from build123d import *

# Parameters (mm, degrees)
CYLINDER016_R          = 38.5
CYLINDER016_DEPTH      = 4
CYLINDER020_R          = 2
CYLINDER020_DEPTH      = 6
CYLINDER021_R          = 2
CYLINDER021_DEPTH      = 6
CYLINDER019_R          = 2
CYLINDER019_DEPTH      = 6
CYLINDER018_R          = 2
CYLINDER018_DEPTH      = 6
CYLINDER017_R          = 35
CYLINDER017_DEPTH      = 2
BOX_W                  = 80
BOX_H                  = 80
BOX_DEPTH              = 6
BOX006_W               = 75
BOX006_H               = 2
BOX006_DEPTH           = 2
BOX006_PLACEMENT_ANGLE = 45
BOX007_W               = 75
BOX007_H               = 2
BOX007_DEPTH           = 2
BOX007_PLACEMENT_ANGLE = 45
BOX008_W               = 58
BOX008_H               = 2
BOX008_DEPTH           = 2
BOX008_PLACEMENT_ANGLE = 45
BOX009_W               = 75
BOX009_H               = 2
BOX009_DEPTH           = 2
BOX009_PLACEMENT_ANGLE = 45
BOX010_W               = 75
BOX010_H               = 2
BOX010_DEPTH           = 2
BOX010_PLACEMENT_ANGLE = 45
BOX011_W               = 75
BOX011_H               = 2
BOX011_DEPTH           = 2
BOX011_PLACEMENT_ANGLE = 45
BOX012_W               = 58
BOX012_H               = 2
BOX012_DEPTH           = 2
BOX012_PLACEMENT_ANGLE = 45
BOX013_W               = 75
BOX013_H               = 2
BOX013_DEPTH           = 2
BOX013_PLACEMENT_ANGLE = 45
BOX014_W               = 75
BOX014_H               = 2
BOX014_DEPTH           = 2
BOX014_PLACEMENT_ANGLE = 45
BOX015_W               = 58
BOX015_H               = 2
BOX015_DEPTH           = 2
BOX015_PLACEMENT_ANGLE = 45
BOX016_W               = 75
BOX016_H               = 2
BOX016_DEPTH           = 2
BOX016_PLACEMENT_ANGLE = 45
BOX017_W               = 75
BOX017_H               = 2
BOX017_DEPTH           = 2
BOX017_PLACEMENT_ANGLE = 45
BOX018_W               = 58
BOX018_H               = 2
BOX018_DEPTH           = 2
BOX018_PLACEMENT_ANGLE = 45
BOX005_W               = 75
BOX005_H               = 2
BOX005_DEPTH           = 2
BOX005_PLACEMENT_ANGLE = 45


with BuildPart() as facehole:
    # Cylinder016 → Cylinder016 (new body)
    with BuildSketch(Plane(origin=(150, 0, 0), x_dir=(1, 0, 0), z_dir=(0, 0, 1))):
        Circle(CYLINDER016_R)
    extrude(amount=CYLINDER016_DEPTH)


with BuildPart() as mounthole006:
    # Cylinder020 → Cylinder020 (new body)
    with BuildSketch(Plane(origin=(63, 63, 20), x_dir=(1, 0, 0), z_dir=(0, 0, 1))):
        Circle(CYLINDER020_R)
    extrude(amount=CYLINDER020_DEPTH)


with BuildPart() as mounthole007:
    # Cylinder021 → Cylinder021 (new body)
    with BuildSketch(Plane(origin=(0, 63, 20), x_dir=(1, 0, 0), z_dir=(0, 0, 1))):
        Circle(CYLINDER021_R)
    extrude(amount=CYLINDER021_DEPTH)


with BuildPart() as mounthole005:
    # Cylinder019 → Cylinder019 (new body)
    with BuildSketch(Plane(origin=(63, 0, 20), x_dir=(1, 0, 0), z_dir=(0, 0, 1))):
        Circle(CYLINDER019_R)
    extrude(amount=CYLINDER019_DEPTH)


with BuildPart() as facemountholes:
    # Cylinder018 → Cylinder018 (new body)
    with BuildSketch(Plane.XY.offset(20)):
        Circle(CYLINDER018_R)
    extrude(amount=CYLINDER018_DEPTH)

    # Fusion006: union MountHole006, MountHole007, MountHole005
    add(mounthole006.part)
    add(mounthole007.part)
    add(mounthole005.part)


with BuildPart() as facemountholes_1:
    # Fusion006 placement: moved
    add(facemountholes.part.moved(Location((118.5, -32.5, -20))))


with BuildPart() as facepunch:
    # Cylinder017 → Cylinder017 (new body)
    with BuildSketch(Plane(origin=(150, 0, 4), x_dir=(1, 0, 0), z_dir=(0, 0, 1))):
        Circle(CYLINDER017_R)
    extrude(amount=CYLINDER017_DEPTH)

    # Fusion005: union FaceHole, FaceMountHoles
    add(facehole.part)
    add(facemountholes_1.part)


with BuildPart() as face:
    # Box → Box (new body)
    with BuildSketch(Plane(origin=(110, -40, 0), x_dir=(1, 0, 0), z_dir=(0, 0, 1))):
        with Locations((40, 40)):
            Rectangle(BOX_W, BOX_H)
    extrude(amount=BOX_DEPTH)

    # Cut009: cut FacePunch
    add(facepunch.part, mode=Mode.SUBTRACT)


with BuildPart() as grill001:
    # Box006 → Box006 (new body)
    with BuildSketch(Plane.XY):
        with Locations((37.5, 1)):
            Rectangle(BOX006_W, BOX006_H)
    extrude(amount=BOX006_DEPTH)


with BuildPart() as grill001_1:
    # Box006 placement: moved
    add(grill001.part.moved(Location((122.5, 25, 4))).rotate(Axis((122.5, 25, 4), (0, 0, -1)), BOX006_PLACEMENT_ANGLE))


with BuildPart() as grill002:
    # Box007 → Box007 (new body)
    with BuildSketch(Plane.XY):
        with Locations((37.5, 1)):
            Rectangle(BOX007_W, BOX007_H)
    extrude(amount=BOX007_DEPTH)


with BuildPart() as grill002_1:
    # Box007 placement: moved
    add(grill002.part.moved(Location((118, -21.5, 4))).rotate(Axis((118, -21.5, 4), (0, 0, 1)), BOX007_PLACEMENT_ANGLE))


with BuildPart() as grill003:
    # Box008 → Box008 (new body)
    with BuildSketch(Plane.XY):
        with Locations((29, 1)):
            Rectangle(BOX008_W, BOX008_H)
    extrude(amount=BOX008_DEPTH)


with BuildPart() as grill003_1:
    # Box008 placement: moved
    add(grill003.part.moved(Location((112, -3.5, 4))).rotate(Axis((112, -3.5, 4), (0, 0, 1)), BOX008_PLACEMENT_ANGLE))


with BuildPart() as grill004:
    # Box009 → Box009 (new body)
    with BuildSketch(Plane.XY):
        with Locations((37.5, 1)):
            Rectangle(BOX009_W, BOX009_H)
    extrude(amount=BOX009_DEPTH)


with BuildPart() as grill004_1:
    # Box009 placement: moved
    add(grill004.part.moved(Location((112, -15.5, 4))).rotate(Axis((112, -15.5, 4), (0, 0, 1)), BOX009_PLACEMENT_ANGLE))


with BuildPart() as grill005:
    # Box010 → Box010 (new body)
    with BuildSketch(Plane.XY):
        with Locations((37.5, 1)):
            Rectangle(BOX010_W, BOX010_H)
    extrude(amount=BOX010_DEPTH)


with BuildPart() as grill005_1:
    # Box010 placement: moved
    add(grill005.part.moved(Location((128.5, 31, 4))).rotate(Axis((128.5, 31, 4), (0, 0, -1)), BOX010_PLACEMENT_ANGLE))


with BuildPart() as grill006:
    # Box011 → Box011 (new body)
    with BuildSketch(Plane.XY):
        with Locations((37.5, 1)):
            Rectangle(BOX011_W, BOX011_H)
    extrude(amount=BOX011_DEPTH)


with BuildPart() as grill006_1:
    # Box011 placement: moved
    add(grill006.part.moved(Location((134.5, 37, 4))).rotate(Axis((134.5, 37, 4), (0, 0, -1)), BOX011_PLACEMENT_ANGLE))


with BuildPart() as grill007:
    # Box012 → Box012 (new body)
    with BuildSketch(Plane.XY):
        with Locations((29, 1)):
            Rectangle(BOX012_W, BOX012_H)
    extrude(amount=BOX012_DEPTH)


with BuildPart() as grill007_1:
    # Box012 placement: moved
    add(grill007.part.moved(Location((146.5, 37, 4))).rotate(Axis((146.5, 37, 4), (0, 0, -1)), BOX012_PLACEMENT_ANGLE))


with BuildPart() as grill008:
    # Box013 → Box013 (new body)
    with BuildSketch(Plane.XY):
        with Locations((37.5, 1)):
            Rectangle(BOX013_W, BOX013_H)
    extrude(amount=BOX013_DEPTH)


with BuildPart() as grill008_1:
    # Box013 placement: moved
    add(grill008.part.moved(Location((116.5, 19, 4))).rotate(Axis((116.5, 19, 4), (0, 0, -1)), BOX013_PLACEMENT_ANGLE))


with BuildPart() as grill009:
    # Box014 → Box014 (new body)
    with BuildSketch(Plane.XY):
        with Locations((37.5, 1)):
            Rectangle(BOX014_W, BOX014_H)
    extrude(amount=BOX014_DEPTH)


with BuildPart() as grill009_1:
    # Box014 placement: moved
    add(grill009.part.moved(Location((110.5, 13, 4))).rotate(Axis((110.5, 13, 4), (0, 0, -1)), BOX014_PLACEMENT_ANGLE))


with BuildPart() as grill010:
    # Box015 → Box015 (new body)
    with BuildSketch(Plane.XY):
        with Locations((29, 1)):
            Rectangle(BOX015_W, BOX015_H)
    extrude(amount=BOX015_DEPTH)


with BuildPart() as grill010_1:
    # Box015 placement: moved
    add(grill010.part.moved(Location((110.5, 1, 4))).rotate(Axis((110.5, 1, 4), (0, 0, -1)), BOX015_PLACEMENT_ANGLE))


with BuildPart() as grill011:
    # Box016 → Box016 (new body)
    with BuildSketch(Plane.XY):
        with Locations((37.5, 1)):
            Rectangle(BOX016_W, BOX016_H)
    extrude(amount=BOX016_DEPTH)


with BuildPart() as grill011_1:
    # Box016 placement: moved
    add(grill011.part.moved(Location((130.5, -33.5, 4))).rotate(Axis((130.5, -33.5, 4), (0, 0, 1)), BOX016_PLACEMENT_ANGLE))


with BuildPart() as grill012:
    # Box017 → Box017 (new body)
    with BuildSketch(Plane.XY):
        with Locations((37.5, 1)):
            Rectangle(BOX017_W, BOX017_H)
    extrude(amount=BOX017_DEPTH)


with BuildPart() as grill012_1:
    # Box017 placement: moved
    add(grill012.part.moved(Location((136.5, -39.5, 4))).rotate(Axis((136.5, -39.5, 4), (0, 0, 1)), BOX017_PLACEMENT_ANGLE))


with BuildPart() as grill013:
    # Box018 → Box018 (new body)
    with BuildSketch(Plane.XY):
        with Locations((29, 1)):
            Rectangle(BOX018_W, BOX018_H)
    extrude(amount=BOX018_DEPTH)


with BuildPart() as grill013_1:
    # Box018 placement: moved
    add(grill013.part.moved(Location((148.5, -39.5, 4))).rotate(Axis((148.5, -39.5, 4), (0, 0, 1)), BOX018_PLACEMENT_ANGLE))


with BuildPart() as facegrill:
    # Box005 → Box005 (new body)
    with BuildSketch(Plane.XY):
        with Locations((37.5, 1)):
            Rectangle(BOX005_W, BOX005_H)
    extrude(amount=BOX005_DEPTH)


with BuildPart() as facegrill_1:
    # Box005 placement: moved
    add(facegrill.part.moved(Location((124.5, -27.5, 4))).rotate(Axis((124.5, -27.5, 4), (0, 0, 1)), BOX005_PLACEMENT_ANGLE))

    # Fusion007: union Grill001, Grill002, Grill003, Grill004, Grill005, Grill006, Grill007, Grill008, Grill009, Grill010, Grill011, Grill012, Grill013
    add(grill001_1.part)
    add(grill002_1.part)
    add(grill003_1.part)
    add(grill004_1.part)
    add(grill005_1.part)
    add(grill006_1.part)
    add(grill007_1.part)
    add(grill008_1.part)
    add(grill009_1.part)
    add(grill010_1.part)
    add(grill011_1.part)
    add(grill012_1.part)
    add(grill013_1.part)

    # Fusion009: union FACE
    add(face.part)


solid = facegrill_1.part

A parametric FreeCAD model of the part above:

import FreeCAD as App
import Part
import Sketcher
Q = App.Units.Quantity


def add_polygon(sketch, points):
    """Adds a closed chain of lines whose ends are joined by coincident constraints."""
    first, n = sketch.GeometryCount, len(points)
    for a, b in zip(points, points[1:] + points[:1]):
        sketch.addGeometry(Part.LineSegment(App.Vector(*a, 0), App.Vector(*b, 0)), False)
    for i in range(n):
        sketch.addConstraint(Sketcher.Constraint("Coincident", first + i, 2, first + (i + 1) % n, 1))

doc = App.newDocument("Part")
body = doc.addObject("PartDesign::Body", "Body")

sketch1 = body.newObject("Sketcher::SketchObject", "Sketch")
sketch1.AttachmentSupport = (doc.getObject("XY_Plane"), [""])
sketch1.MapMode = "FlatFace"
sketch1.addGeometry(Part.Circle(App.Vector(150, 0, 0), App.Vector(0, 0, 1), 38), False)
sketch1.addConstraint(Sketcher.Constraint("PointOnObject", 0, 3, -1))
sketch1.addConstraint(Sketcher.Constraint("Diameter", 0, Q("77 mm")))
sketch1.addConstraint(Sketcher.Constraint("DistanceX", -1, 1, 0, 3, Q("150 mm")))
pad1 = body.newObject("PartDesign::Pad", "Pad")
pad1.Profile = sketch1
pad1.Length = 4
body2 = doc.addObject("PartDesign::Body", "Body001")

sketch2 = body2.newObject("Sketcher::SketchObject", "Sketch001")
sketch2.AttachmentSupport = (doc.getObject("XY_Plane001"), [""])
sketch2.MapMode = "FlatFace"
sketch2.AttachmentOffset = App.Placement(App.Vector(0, 0, 20), App.Rotation())
sketch2.addGeometry(Part.Circle(App.Vector(63, 63, 0), App.Vector(0, 0, 1), 2), False)
sketch2.addConstraint(Sketcher.Constraint("Diameter", 0, Q("4 mm")))
sketch2.addConstraint(Sketcher.Constraint("DistanceX", -1, 1, 0, 3, Q("63 mm")))
sketch2.addConstraint(Sketcher.Constraint("DistanceY", -1, 1, 0, 3, Q("63 mm")))
pad2 = body2.newObject("PartDesign::Pad", "Pad001")
pad2.Profile = sketch2
pad2.Length = 6
body3 = doc.addObject("PartDesign::Body", "Body002")

sketch3 = body3.newObject("Sketcher::SketchObject", "Sketch002")
sketch3.AttachmentSupport = (doc.getObject("XY_Plane002"), [""])
sketch3.MapMode = "FlatFace"
sketch3.AttachmentOffset = App.Placement(App.Vector(0, 0, 20), App.Rotation())
sketch3.addGeometry(Part.Circle(App.Vector(0, 63, 0), App.Vector(0, 0, 1), 2), False)
sketch3.addConstraint(Sketcher.Constraint("PointOnObject", 0, 3, -2))
sketch3.addConstraint(Sketcher.Constraint("Diameter", 0, Q("4 mm")))
sketch3.addConstraint(Sketcher.Constraint("DistanceY", -1, 1, 0, 3, Q("63 mm")))
pad3 = body3.newObject("PartDesign::Pad", "Pad002")
pad3.Profile = sketch3
pad3.Length = 6
body4 = doc.addObject("PartDesign::Body", "Body003")

sketch4 = body4.newObject("Sketcher::SketchObject", "Sketch003")
sketch4.AttachmentSupport = (doc.getObject("XY_Plane003"), [""])
sketch4.MapMode = "FlatFace"
sketch4.AttachmentOffset = App.Placement(App.Vector(0, 0, 20), App.Rotation())
sketch4.addGeometry(Part.Circle(App.Vector(63, 0, 0), App.Vector(0, 0, 1), 2), False)
sketch4.addConstraint(Sketcher.Constraint("PointOnObject", 0, 3, -1))
sketch4.addConstraint(Sketcher.Constraint("Diameter", 0, Q("4 mm")))
sketch4.addConstraint(Sketcher.Constraint("DistanceX", -1, 1, 0, 3, Q("63 mm")))
pad4 = body4.newObject("PartDesign::Pad", "Pad003")
pad4.Profile = sketch4
pad4.Length = 6
body5 = doc.addObject("PartDesign::Body", "Body004")
body5.AllowCompound = True

sketch5 = body5.newObject("Sketcher::SketchObject", "Sketch004")
sketch5.AttachmentSupport = (doc.getObject("XY_Plane004"), [""])
sketch5.MapMode = "FlatFace"
sketch5.AttachmentOffset = App.Placement(App.Vector(0, 0, 20), App.Rotation())
sketch5.addGeometry(Part.Circle(App.Vector(0, 0, 0), App.Vector(0, 0, 1), 2), False)
sketch5.addConstraint(Sketcher.Constraint("Coincident", 0, 3, -1, 1))
sketch5.addConstraint(Sketcher.Constraint("Diameter", 0, Q("4 mm")))
pad5 = body5.newObject("PartDesign::Pad", "Pad004")
pad5.Profile = sketch5
pad5.Length = 6
doc.recompute()

boolean = body5.newObject("PartDesign::Boolean", "Boolean")
boolean.Type = "Fuse"
boolean.addObjects([body2])
doc.recompute()

boolean2 = body5.newObject("PartDesign::Boolean", "Boolean001")
boolean2.Type = "Fuse"
boolean2.addObjects([body3])
doc.recompute()

boolean3 = body5.newObject("PartDesign::Boolean", "Boolean002")
boolean3.Type = "Fuse"
boolean3.addObjects([body4])
body6 = doc.addObject("PartDesign::Body", "Body005")
body6.AllowCompound = True
doc.recompute()

body5.Placement = App.Placement(App.Vector(118.5, -32.5, -20), App.Rotation(App.Vector(0, 0, 1), 0))
boolean4 = body6.newObject("PartDesign::Boolean", "Boolean003")
boolean4.Type = "Fuse"
boolean4.addObjects([body5])
body7 = doc.addObject("PartDesign::Body", "Body006")
body7.AllowCompound = True

sketch6 = body7.newObject("Sketcher::SketchObject", "Sketch005")
sketch6.AttachmentSupport = (doc.getObject("XY_Plane006"), [""])
sketch6.MapMode = "FlatFace"
sketch6.AttachmentOffset = App.Placement(App.Vector(0, 0, 4), App.Rotation())
sketch6.addGeometry(Part.Circle(App.Vector(150, 0, 0), App.Vector(0, 0, 1), 35), False)
sketch6.addConstraint(Sketcher.Constraint("PointOnObject", 0, 3, -1))
sketch6.addConstraint(Sketcher.Constraint("Diameter", 0, Q("70 mm")))
sketch6.addConstraint(Sketcher.Constraint("DistanceX", -1, 1, 0, 3, Q("150 mm")))
pad6 = body7.newObject("PartDesign::Pad", "Pad005")
pad6.Profile = sketch6
pad6.Length = 2
doc.recompute()

boolean5 = body7.newObject("PartDesign::Boolean", "Boolean004")
boolean5.Type = "Fuse"
boolean5.addObjects([body])
doc.recompute()

boolean6 = body7.newObject("PartDesign::Boolean", "Boolean005")
boolean6.Type = "Fuse"
boolean6.addObjects([body6])
body8 = doc.addObject("PartDesign::Body", "Body007")

sketch7 = body8.newObject("Sketcher::SketchObject", "Sketch006")
sketch7.AttachmentSupport = (doc.getObject("XY_Plane007"), [""])
sketch7.MapMode = "FlatFace"
add_polygon(sketch7, [(110, 40), (110, -40), (190, -40), (190, 40)])
sketch7.addConstraint(Sketcher.Constraint("Vertical", 0))
sketch7.addConstraint(Sketcher.Constraint("Horizontal", 1))
sketch7.addConstraint(Sketcher.Constraint("Vertical", 2))
sketch7.addConstraint(Sketcher.Constraint("Horizontal", 3))
sketch7.addConstraint(Sketcher.Constraint("Equal", 3, 0))
sketch7.addConstraint(Sketcher.Constraint("DistanceX", 1, 1, 1, 2, Q("80 mm")))
sketch7.addConstraint(Sketcher.Constraint("DistanceX", -1, 1, 0, 2, Q("110 mm")))
sketch7.addConstraint(Sketcher.Constraint("DistanceY", 0, 2, -1, 1, Q("40 mm")))
pad7 = body8.newObject("PartDesign::Pad", "Pad006")
pad7.Profile = sketch7
pad7.Length = 6
doc.recompute()

boolean7 = body8.newObject("PartDesign::Boolean", "Boolean006")
boolean7.Type = "Cut"
boolean7.addObjects([body7])
body9 = doc.addObject("PartDesign::Body", "Body008")

sketch8 = body9.newObject("Sketcher::SketchObject", "Sketch007")
sketch8.AttachmentSupport = (doc.getObject("XY_Plane008"), [""])
sketch8.MapMode = "FlatFace"
add_polygon(sketch8, [(0, 2), (0, 0), (75, 0), (75, 2)])
sketch8.addConstraint(Sketcher.Constraint("Vertical", 0))
sketch8.addConstraint(Sketcher.Constraint("Horizontal", 1))
sketch8.addConstraint(Sketcher.Constraint("Vertical", 2))
sketch8.addConstraint(Sketcher.Constraint("Horizontal", 3))
sketch8.addConstraint(Sketcher.Constraint("Coincident", 0, 2, -1, 1))
sketch8.addConstraint(Sketcher.Constraint("DistanceX", 1, 1, 1, 2, Q("75 mm")))
sketch8.addConstraint(Sketcher.Constraint("DistanceY", 0, 2, 0, 1, Q("2 mm")))
pad8 = body9.newObject("PartDesign::Pad", "Pad007")
pad8.Profile = sketch8
pad8.Length = 2
body10 = doc.addObject("PartDesign::Body", "Body009")
doc.recompute()

body9.Placement = App.Placement(App.Vector(122.5, 25, 4), App.Rotation(App.Vector(0, 0, -1), 45))
boolean8 = body10.newObject("PartDesign::Boolean", "Boolean007")
boolean8.Type = "Fuse"
boolean8.addObjects([body9])
body11 = doc.addObject("PartDesign::Body", "Body010")

sketch9 = body11.newObject("Sketcher::SketchObject", "Sketch008")
sketch9.AttachmentSupport = (doc.getObject("XY_Plane010"), [""])
sketch9.MapMode = "FlatFace"
add_polygon(sketch9, [(0, 2), (0, 0), (75, 0), (75, 2)])
sketch9.addConstraint(Sketcher.Constraint("Vertical", 0))
sketch9.addConstraint(Sketcher.Constraint("Horizontal", 1))
sketch9.addConstraint(Sketcher.Constraint("Vertical", 2))
sketch9.addConstraint(Sketcher.Constraint("Horizontal", 3))
sketch9.addConstraint(Sketcher.Constraint("Coincident", 0, 2, -1, 1))
sketch9.addConstraint(Sketcher.Constraint("DistanceX", 1, 1, 1, 2, Q("75 mm")))
sketch9.addConstraint(Sketcher.Constraint("DistanceY", 0, 2, 0, 1, Q("2 mm")))
pad9 = body11.newObject("PartDesign::Pad", "Pad008")
pad9.Profile = sketch9
pad9.Length = 2
body12 = doc.addObject("PartDesign::Body", "Body011")
doc.recompute()

body11.Placement = App.Placement(App.Vector(118, -21.5, 4), App.Rotation(App.Vector(0, 0, 1), 45))
boolean9 = body12.newObject("PartDesign::Boolean", "Boolean008")
boolean9.Type = "Fuse"
boolean9.addObjects([body11])
body13 = doc.addObject("PartDesign::Body", "Body012")

sketch10 = body13.newObject("Sketcher::SketchObject", "Sketch009")
sketch10.AttachmentSupport = (doc.getObject("XY_Plane012"), [""])
sketch10.MapMode = "FlatFace"
add_polygon(sketch10, [(0, 2), (0, 0), (58, 0), (58, 2)])
sketch10.addConstraint(Sketcher.Constraint("Vertical", 0))
sketch10.addConstraint(Sketcher.Constraint("Horizontal", 1))
sketch10.addConstraint(Sketcher.Constraint("Vertical", 2))
sketch10.addConstraint(Sketcher.Constraint("Horizontal", 3))
sketch10.addConstraint(Sketcher.Constraint("Coincident", 0, 2, -1, 1))
sketch10.addConstraint(Sketcher.Constraint("DistanceX", 1, 1, 1, 2, Q("58 mm")))
sketch10.addConstraint(Sketcher.Constraint("DistanceY", 0, 2, 0, 1, Q("2 mm")))
pad10 = body13.newObject("PartDesign::Pad", "Pad009")
pad10.Profile = sketch10
pad10.Length = 2
body14 = doc.addObject("PartDesign::Body", "Body013")
doc.recompute()

body13.Placement = App.Placement(App.Vector(112, -3.5, 4), App.Rotation(App.Vector(0, 0, 1), 45))
boolean10 = body14.newObject("PartDesign::Boolean", "Boolean009")
boolean10.Type = "Fuse"
boolean10.addObjects([body13])
body15 = doc.addObject("PartDesign::Body", "Body014")

sketch11 = body15.newObject("Sketcher::SketchObject", "Sketch010")
sketch11.AttachmentSupport = (doc.getObject("XY_Plane014"), [""])
sketch11.MapMode = "FlatFace"
add_polygon(sketch11, [(0, 2), (0, 0), (75, 0), (75, 2)])
sketch11.addConstraint(Sketcher.Constraint("Vertical", 0))
sketch11.addConstraint(Sketcher.Constraint("Horizontal", 1))
sketch11.addConstraint(Sketcher.Constraint("Vertical", 2))
sketch11.addConstraint(Sketcher.Constraint("Horizontal", 3))
sketch11.addConstraint(Sketcher.Constraint("Coincident", 0, 2, -1, 1))
sketch11.addConstraint(Sketcher.Constraint("DistanceX", 1, 1, 1, 2, Q("75 mm")))
sketch11.addConstraint(Sketcher.Constraint("DistanceY", 0, 2, 0, 1, Q("2 mm")))
pad11 = body15.newObject("PartDesign::Pad", "Pad010")
pad11.Profile = sketch11
pad11.Length = 2
body16 = doc.addObject("PartDesign::Body", "Body015")
doc.recompute()

body15.Placement = App.Placement(App.Vector(112, -15.5, 4), App.Rotation(App.Vector(0, 0, 1), 45))
boolean11 = body16.newObject("PartDesign::Boolean", "Boolean010")
boolean11.Type = "Fuse"
boolean11.addObjects([body15])
body17 = doc.addObject("PartDesign::Body", "Body016")

sketch12 = body17.newObject("Sketcher::SketchObject", "Sketch011")
sketch12.AttachmentSupport = (doc.getObject("XY_Plane016"), [""])
sketch12.MapMode = "FlatFace"
add_polygon(sketch12, [(0, 2), (0, 0), (75, 0), (75, 2)])
sketch12.addConstraint(Sketcher.Constraint("Vertical", 0))
sketch12.addConstraint(Sketcher.Constraint("Horizontal", 1))
sketch12.addConstraint(Sketcher.Constraint("Vertical", 2))
sketch12.addConstraint(Sketcher.Constraint("Horizontal", 3))
sketch12.addConstraint(Sketcher.Constraint("Coincident", 0, 2, -1, 1))
sketch12.addConstraint(Sketcher.Constraint("DistanceX", 1, 1, 1, 2, Q("75 mm")))
sketch12.addConstraint(Sketcher.Constraint("DistanceY", 0, 2, 0, 1, Q("2 mm")))
pad12 = body17.newObject("PartDesign::Pad", "Pad011")
pad12.Profile = sketch12
pad12.Length = 2
body18 = doc.addObject("PartDesign::Body", "Body017")
doc.recompute()

body17.Placement = App.Placement(App.Vector(128.5, 31, 4), App.Rotation(App.Vector(0, 0, -1), 45))
boolean12 = body18.newObject("PartDesign::Boolean", "Boolean011")
boolean12.Type = "Fuse"
boolean12.addObjects([body17])
body19 = doc.addObject("PartDesign::Body", "Body018")

sketch13 = body19.newObject("Sketcher::SketchObject", "Sketch012")
sketch13.AttachmentSupport = (doc.getObject("XY_Plane018"), [""])
sketch13.MapMode = "FlatFace"
add_polygon(sketch13, [(0, 2), (0, 0), (75, 0), (75, 2)])
sketch13.addConstraint(Sketcher.Constraint("Vertical", 0))
sketch13.addConstraint(Sketcher.Constraint("Horizontal", 1))
sketch13.addConstraint(Sketcher.Constraint("Vertical", 2))
sketch13.addConstraint(Sketcher.Constraint("Horizontal", 3))
sketch13.addConstraint(Sketcher.Constraint("Coincident", 0, 2, -1, 1))
sketch13.addConstraint(Sketcher.Constraint("DistanceX", 1, 1, 1, 2, Q("75 mm")))
sketch13.addConstraint(Sketcher.Constraint("DistanceY", 0, 2, 0, 1, Q("2 mm")))
pad13 = body19.newObject("PartDesign::Pad", "Pad012")
pad13.Profile = sketch13
pad13.Length = 2
body20 = doc.addObject("PartDesign::Body", "Body019")
doc.recompute()

body19.Placement = App.Placement(App.Vector(134.5, 37, 4), App.Rotation(App.Vector(0, 0, -1), 45))
boolean13 = body20.newObject("PartDesign::Boolean", "Boolean012")
boolean13.Type = "Fuse"
boolean13.addObjects([body19])
body21 = doc.addObject("PartDesign::Body", "Body020")

sketch14 = body21.newObject("Sketcher::SketchObject", "Sketch013")
sketch14.AttachmentSupport = (doc.getObject("XY_Plane020"), [""])
sketch14.MapMode = "FlatFace"
add_polygon(sketch14, [(0, 2), (0, 0), (58, 0), (58, 2)])
sketch14.addConstraint(Sketcher.Constraint("Vertical", 0))
sketch14.addConstraint(Sketcher.Constraint("Horizontal", 1))
sketch14.addConstraint(Sketcher.Constraint("Vertical", 2))
sketch14.addConstraint(Sketcher.Constraint("Horizontal", 3))
sketch14.addConstraint(Sketcher.Constraint("Coincident", 0, 2, -1, 1))
sketch14.addConstraint(Sketcher.Constraint("DistanceX", 1, 1, 1, 2, Q("58 mm")))
sketch14.addConstraint(Sketcher.Constraint("DistanceY", 0, 2, 0, 1, Q("2 mm")))
pad14 = body21.newObject("PartDesign::Pad", "Pad013")
pad14.Profile = sketch14
pad14.Length = 2
body22 = doc.addObject("PartDesign::Body", "Body021")
doc.recompute()

body21.Placement = App.Placement(App.Vector(146.5, 37, 4), App.Rotation(App.Vector(0, 0, -1), 45))
boolean14 = body22.newObject("PartDesign::Boolean", "Boolean013")
boolean14.Type = "Fuse"
boolean14.addObjects([body21])
body23 = doc.addObject("PartDesign::Body", "Body022")

sketch15 = body23.newObject("Sketcher::SketchObject", "Sketch014")
sketch15.AttachmentSupport = (doc.getObject("XY_Plane022"), [""])
sketch15.MapMode = "FlatFace"
add_polygon(sketch15, [(0, 2), (0, 0), (75, 0), (75, 2)])
sketch15.addConstraint(Sketcher.Constraint("Vertical", 0))
sketch15.addConstraint(Sketcher.Constraint("Horizontal", 1))
sketch15.addConstraint(Sketcher.Constraint("Vertical", 2))
sketch15.addConstraint(Sketcher.Constraint("Horizontal", 3))
sketch15.addConstraint(Sketcher.Constraint("Coincident", 0, 2, -1, 1))
sketch15.addConstraint(Sketcher.Constraint("DistanceX", 1, 1, 1, 2, Q("75 mm")))
sketch15.addConstraint(Sketcher.Constraint("DistanceY", 0, 2, 0, 1, Q("2 mm")))
pad15 = body23.newObject("PartDesign::Pad", "Pad014")
pad15.Profile = sketch15
pad15.Length = 2
body24 = doc.addObject("PartDesign::Body", "Body023")
doc.recompute()

body23.Placement = App.Placement(App.Vector(116.5, 19, 4), App.Rotation(App.Vector(0, 0, -1), 45))
boolean15 = body24.newObject("PartDesign::Boolean", "Boolean014")
boolean15.Type = "Fuse"
boolean15.addObjects([body23])
body25 = doc.addObject("PartDesign::Body", "Body024")

sketch16 = body25.newObject("Sketcher::SketchObject", "Sketch015")
sketch16.AttachmentSupport = (doc.getObject("XY_Plane024"), [""])
sketch16.MapMode = "FlatFace"
add_polygon(sketch16, [(0, 2), (0, 0), (75, 0), (75, 2)])
sketch16.addConstraint(Sketcher.Constraint("Vertical", 0))
sketch16.addConstraint(Sketcher.Constraint("Horizontal", 1))
sketch16.addConstraint(Sketcher.Constraint("Vertical", 2))
sketch16.addConstraint(Sketcher.Constraint("Horizontal", 3))
sketch16.addConstraint(Sketcher.Constraint("Coincident", 0, 2, -1, 1))
sketch16.addConstraint(Sketcher.Constraint("DistanceX", 1, 1, 1, 2, Q("75 mm")))
sketch16.addConstraint(Sketcher.Constraint("DistanceY", 0, 2, 0, 1, Q("2 mm")))
pad16 = body25.newObject("PartDesign::Pad", "Pad015")
pad16.Profile = sketch16
pad16.Length = 2
body26 = doc.addObject("PartDesign::Body", "Body025")
doc.recompute()

body25.Placement = App.Placement(App.Vector(110.5, 13, 4), App.Rotation(App.Vector(0, 0, -1), 45))
boolean16 = body26.newObject("PartDesign::Boolean", "Boolean015")
boolean16.Type = "Fuse"
boolean16.addObjects([body25])
body27 = doc.addObject("PartDesign::Body", "Body026")

sketch17 = body27.newObject("Sketcher::SketchObject", "Sketch016")
sketch17.AttachmentSupport = (doc.getObject("XY_Plane026"), [""])
sketch17.MapMode = "FlatFace"
add_polygon(sketch17, [(0, 2), (0, 0), (58, 0), (58, 2)])
sketch17.addConstraint(Sketcher.Constraint("Vertical", 0))
sketch17.addConstraint(Sketcher.Constraint("Horizontal", 1))
sketch17.addConstraint(Sketcher.Constraint("Vertical", 2))
sketch17.addConstraint(Sketcher.Constraint("Horizontal", 3))
sketch17.addConstraint(Sketcher.Constraint("Coincident", 0, 2, -1, 1))
sketch17.addConstraint(Sketcher.Constraint("DistanceX", 1, 1, 1, 2, Q("58 mm")))
sketch17.addConstraint(Sketcher.Constraint("DistanceY", 0, 2, 0, 1, Q("2 mm")))
pad17 = body27.newObject("PartDesign::Pad", "Pad016")
pad17.Profile = sketch17
pad17.Length = 2
body28 = doc.addObject("PartDesign::Body", "Body027")
doc.recompute()

body27.Placement = App.Placement(App.Vector(110.5, 1, 4), App.Rotation(App.Vector(0, 0, -1), 45))
boolean17 = body28.newObject("PartDesign::Boolean", "Boolean016")
boolean17.Type = "Fuse"
boolean17.addObjects([body27])
body29 = doc.addObject("PartDesign::Body", "Body028")

sketch18 = body29.newObject("Sketcher::SketchObject", "Sketch017")
sketch18.AttachmentSupport = (doc.getObject("XY_Plane028"), [""])
sketch18.MapMode = "FlatFace"
add_polygon(sketch18, [(0, 2), (0, 0), (75, 0), (75, 2)])
sketch18.addConstraint(Sketcher.Constraint("Vertical", 0))
sketch18.addConstraint(Sketcher.Constraint("Horizontal", 1))
sketch18.addConstraint(Sketcher.Constraint("Vertical", 2))
sketch18.addConstraint(Sketcher.Constraint("Horizontal", 3))
sketch18.addConstraint(Sketcher.Constraint("Coincident", 0, 2, -1, 1))
sketch18.addConstraint(Sketcher.Constraint("DistanceX", 1, 1, 1, 2, Q("75 mm")))
sketch18.addConstraint(Sketcher.Constraint("DistanceY", 0, 2, 0, 1, Q("2 mm")))
pad18 = body29.newObject("PartDesign::Pad", "Pad017")
pad18.Profile = sketch18
pad18.Length = 2
body30 = doc.addObject("PartDesign::Body", "Body029")
doc.recompute()

body29.Placement = App.Placement(App.Vector(130.5, -33.5, 4), App.Rotation(App.Vector(0, 0, 1), 45))
boolean18 = body30.newObject("PartDesign::Boolean", "Boolean017")
boolean18.Type = "Fuse"
boolean18.addObjects([body29])
body31 = doc.addObject("PartDesign::Body", "Body030")

sketch19 = body31.newObject("Sketcher::SketchObject", "Sketch018")
sketch19.AttachmentSupport = (doc.getObject("XY_Plane030"), [""])
sketch19.MapMode = "FlatFace"
add_polygon(sketch19, [(0, 2), (0, 0), (75, 0), (75, 2)])
sketch19.addConstraint(Sketcher.Constraint("Vertical", 0))
sketch19.addConstraint(Sketcher.Constraint("Horizontal", 1))
sketch19.addConstraint(Sketcher.Constraint("Vertical", 2))
sketch19.addConstraint(Sketcher.Constraint("Horizontal", 3))
sketch19.addConstraint(Sketcher.Constraint("Coincident", 0, 2, -1, 1))
sketch19.addConstraint(Sketcher.Constraint("DistanceX", 1, 1, 1, 2, Q("75 mm")))
sketch19.addConstraint(Sketcher.Constraint("DistanceY", 0, 2, 0, 1, Q("2 mm")))
pad19 = body31.newObject("PartDesign::Pad", "Pad018")
pad19.Profile = sketch19
pad19.Length = 2
body32 = doc.addObject("PartDesign::Body", "Body031")
doc.recompute()

body31.Placement = App.Placement(App.Vector(136.5, -39.5, 4), App.Rotation(App.Vector(0, 0, 1), 45))
boolean19 = body32.newObject("PartDesign::Boolean", "Boolean018")
boolean19.Type = "Fuse"
boolean19.addObjects([body31])
body33 = doc.addObject("PartDesign::Body", "Body032")

sketch20 = body33.newObject("Sketcher::SketchObject", "Sketch019")
sketch20.AttachmentSupport = (doc.getObject("XY_Plane032"), [""])
sketch20.MapMode = "FlatFace"
add_polygon(sketch20, [(0, 2), (0, 0), (58, 0), (58, 2)])
sketch20.addConstraint(Sketcher.Constraint("Vertical", 0))
sketch20.addConstraint(Sketcher.Constraint("Horizontal", 1))
sketch20.addConstraint(Sketcher.Constraint("Vertical", 2))
sketch20.addConstraint(Sketcher.Constraint("Horizontal", 3))
sketch20.addConstraint(Sketcher.Constraint("Coincident", 0, 2, -1, 1))
sketch20.addConstraint(Sketcher.Constraint("DistanceX", 1, 1, 1, 2, Q("58 mm")))
sketch20.addConstraint(Sketcher.Constraint("DistanceY", 0, 2, 0, 1, Q("2 mm")))
pad20 = body33.newObject("PartDesign::Pad", "Pad019")
pad20.Profile = sketch20
pad20.Length = 2
body34 = doc.addObject("PartDesign::Body", "Body033")
doc.recompute()

body33.Placement = App.Placement(App.Vector(148.5, -39.5, 4), App.Rotation(App.Vector(0, 0, 1), 45))
boolean20 = body34.newObject("PartDesign::Boolean", "Boolean019")
boolean20.Type = "Fuse"
boolean20.addObjects([body33])
body35 = doc.addObject("PartDesign::Body", "Body034")

sketch21 = body35.newObject("Sketcher::SketchObject", "Sketch020")
sketch21.AttachmentSupport = (doc.getObject("XY_Plane034"), [""])
sketch21.MapMode = "FlatFace"
add_polygon(sketch21, [(0, 2), (0, 0), (75, 0), (75, 2)])
sketch21.addConstraint(Sketcher.Constraint("Vertical", 0))
sketch21.addConstraint(Sketcher.Constraint("Horizontal", 1))
sketch21.addConstraint(Sketcher.Constraint("Vertical", 2))
sketch21.addConstraint(Sketcher.Constraint("Horizontal", 3))
sketch21.addConstraint(Sketcher.Constraint("Coincident", 0, 2, -1, 1))
sketch21.addConstraint(Sketcher.Constraint("DistanceX", 1, 1, 1, 2, Q("75 mm")))
sketch21.addConstraint(Sketcher.Constraint("DistanceY", 0, 2, 0, 1, Q("2 mm")))
pad21 = body35.newObject("PartDesign::Pad", "Pad020")
pad21.Profile = sketch21
pad21.Length = 2
body36 = doc.addObject("PartDesign::Body", "Body035")
doc.recompute()

body35.Placement = App.Placement(App.Vector(124.5, -27.5, 4), App.Rotation(App.Vector(0, 0, 1), 45))
boolean21 = body36.newObject("PartDesign::Boolean", "Boolean020")
boolean21.Type = "Fuse"
boolean21.addObjects([body35])
doc.recompute()

boolean22 = body36.newObject("PartDesign::Boolean", "Boolean021")
boolean22.Type = "Fuse"
boolean22.addObjects([body10])
doc.recompute()

boolean23 = body36.newObject("PartDesign::Boolean", "Boolean022")
boolean23.Type = "Fuse"
boolean23.addObjects([body12])
doc.recompute()

boolean24 = body36.newObject("PartDesign::Boolean", "Boolean023")
boolean24.Type = "Fuse"
boolean24.addObjects([body14])
doc.recompute()

boolean25 = body36.newObject("PartDesign::Boolean", "Boolean024")
boolean25.Type = "Fuse"
boolean25.addObjects([body16])
doc.recompute()

boolean26 = body36.newObject("PartDesign::Boolean", "Boolean025")
boolean26.Type = "Fuse"
boolean26.addObjects([body18])
doc.recompute()

boolean27 = body36.newObject("PartDesign::Boolean", "Boolean026")
boolean27.Type = "Fuse"
boolean27.addObjects([body20])
doc.recompute()

boolean28 = body36.newObject("PartDesign::Boolean", "Boolean027")
boolean28.Type = "Fuse"
boolean28.addObjects([body22])
doc.recompute()

boolean29 = body36.newObject("PartDesign::Boolean", "Boolean028")
boolean29.Type = "Fuse"
boolean29.addObjects([body24])
doc.recompute()

boolean30 = body36.newObject("PartDesign::Boolean", "Boolean029")
boolean30.Type = "Fuse"
boolean30.addObjects([body26])
doc.recompute()

boolean31 = body36.newObject("PartDesign::Boolean", "Boolean030")
boolean31.Type = "Fuse"
boolean31.addObjects([body28])
doc.recompute()

boolean32 = body36.newObject("PartDesign::Boolean", "Boolean031")
boolean32.Type = "Fuse"
boolean32.addObjects([body30])
doc.recompute()

boolean33 = body36.newObject("PartDesign::Boolean", "Boolean032")
boolean33.Type = "Fuse"
boolean33.addObjects([body32])
doc.recompute()

boolean34 = body36.newObject("PartDesign::Boolean", "Boolean033")
boolean34.Type = "Fuse"
boolean34.addObjects([body34])
doc.recompute()

boolean35 = body36.newObject("PartDesign::Boolean", "Boolean034")
boolean35.Type = "Fuse"
boolean35.addObjects([body8])

doc.recompute()
